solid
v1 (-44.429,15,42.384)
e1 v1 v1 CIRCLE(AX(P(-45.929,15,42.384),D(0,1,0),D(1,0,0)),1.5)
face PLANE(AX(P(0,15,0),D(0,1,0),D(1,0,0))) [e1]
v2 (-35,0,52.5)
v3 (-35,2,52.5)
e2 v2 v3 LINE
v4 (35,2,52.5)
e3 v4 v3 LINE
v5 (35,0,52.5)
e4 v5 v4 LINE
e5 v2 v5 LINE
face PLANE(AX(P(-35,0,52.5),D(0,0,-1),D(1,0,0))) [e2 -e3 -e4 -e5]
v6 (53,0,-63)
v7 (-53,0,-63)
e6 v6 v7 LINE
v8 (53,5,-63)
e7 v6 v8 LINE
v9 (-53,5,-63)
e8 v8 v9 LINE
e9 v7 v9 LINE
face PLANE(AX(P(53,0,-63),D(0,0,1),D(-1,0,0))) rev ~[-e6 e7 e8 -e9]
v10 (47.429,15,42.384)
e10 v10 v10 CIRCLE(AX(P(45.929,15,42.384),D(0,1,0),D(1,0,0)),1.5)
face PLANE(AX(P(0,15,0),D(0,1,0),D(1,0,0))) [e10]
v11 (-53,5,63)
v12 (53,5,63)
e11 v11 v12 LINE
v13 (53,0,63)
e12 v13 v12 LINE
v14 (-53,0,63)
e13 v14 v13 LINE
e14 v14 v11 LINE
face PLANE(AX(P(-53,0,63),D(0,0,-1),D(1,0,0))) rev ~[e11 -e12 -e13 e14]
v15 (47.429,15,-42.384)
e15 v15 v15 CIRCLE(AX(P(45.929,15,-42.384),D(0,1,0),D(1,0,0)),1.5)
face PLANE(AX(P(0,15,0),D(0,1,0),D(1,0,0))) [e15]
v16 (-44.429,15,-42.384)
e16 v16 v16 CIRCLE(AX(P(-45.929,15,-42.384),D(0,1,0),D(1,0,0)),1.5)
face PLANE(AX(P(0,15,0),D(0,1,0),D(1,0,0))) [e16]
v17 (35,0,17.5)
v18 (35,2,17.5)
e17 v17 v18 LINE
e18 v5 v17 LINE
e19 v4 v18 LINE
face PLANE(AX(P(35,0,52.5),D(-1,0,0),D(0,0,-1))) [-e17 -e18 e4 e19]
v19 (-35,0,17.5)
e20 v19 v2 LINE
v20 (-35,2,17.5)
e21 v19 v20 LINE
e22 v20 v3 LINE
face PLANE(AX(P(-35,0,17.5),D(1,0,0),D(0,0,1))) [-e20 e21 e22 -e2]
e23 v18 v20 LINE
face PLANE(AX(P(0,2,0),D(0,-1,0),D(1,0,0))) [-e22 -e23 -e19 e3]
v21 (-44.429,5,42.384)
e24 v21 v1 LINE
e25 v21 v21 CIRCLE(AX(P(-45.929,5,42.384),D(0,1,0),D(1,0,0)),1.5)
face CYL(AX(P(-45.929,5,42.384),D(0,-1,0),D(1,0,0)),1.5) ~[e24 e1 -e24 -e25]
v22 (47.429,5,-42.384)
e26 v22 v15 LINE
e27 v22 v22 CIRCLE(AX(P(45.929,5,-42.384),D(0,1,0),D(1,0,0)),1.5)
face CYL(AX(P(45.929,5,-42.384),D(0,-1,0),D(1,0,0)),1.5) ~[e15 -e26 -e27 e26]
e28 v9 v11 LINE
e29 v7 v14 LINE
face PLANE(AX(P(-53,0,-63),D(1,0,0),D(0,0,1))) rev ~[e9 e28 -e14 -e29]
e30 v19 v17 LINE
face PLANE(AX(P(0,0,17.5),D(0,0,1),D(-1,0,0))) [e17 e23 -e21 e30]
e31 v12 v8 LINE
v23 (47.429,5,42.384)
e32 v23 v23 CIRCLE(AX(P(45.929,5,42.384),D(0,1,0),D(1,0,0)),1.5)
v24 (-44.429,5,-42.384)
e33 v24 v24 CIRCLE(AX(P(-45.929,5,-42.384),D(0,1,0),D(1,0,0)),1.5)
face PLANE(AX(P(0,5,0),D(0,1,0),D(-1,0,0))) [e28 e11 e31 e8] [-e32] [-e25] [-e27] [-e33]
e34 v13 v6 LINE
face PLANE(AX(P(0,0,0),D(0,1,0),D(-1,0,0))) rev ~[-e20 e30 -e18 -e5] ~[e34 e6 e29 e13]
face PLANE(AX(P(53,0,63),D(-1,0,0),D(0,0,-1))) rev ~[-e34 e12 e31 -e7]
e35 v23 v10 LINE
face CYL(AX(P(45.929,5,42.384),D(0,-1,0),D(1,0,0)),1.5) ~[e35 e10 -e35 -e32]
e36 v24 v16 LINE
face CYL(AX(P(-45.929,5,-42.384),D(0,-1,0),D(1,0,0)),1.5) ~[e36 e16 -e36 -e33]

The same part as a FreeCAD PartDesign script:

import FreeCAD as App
import Part
import Sketcher

V = App.Vector
Q = App.Units.Quantity

doc = App.newDocument("Part")
params = doc.addObject("Spreadsheet::Sheet", "Params")
for row, (alias, value) in enumerate([
    ("sketch1_width", "106 mm"),
    ("sketch1_height", "126 mm"),
    ("pad1_length", "5 mm"),
    ("sketch2_diameter", "3 mm"),
    ("pad2_length", "10 mm"),
    ("sketch3_height", "35 mm"),
    ("pocket1_length", "2 mm"),
], start=1):
    params.set(f"A{row}", alias)
    params.set(f"B{row}", "=" + value)
    params.setAlias(f"B{row}", alias)

body = doc.addObject("PartDesign::Body", "Body")

sketch1 = body.newObject("Sketcher::SketchObject", "Sketch")
sketch1.AttachmentSupport = (doc.getObject("XZ_Plane"), [""])
sketch1.MapMode = "FlatFace"
sketch1.addGeometry([
    Part.LineSegment(V(-53, -63, 0), V(-53, 63, 0)),
    Part.LineSegment(V(-53, 63, 0), V(53, 63, 0)),
    Part.LineSegment(V(53, 63, 0), V(53, -63, 0)),
    Part.LineSegment(V(53, -63, 0), V(-53, -63, 0)),
], False)
sketch1.addConstraint([
    Sketcher.Constraint("Coincident", 0, 2, 1, 1),
    Sketcher.Constraint("Coincident", 1, 2, 2, 1),
    Sketcher.Constraint("Coincident", 2, 2, 3, 1),
    Sketcher.Constraint("Coincident", 3, 2, 0, 1),
    Sketcher.Constraint("Vertical", 0),
    Sketcher.Constraint("Horizontal", 1),
    Sketcher.Constraint("Vertical", 2),
    Sketcher.Constraint("Horizontal", 3),
    Sketcher.Constraint("Symmetric", 0, 2, 2, 2, -1, 1),
    Sketcher.Constraint("DistanceX", 1, 1, 1, 2, Q("106 mm")),
    Sketcher.Constraint("DistanceY", 0, 1, 0, 2, Q("126 mm")),
])
sketch1.setExpression("Constraints[9]", "Params.sketch1_width")
sketch1.setExpression("Constraints[10]", "Params.sketch1_height")
pad1 = body.newObject("PartDesign::Pad", "Pad")
pad1.Profile = sketch1
pad1.setExpression("Length", "Params.pad1_length")
pad1.Reversed = True

sketch2 = body.newObject("Sketcher::SketchObject", "Sketch001")
sketch2.AttachmentSupport = (doc.getObject("XZ_Plane"), [""])
sketch2.MapMode = "FlatFace"
sketch2.AttachmentOffset = App.Placement(V(0, 0, -5), App.Rotation())
sketch2.addGeometry([
    Part.Circle(V(-45.9, 42.4, 0), V(0, 0, 1), 1.5),
    Part.Circle(V(-45.9, -42.4, 0), V(0, 0, 1), 1.5),
    Part.Circle(V(45.9, 42.4, 0), V(0, 0, 1), 1.5),
    Part.Circle(V(45.9, -42.4, 0), V(0, 0, 1), 1.5),
], False)
sketch2.addConstraint([
    Sketcher.Constraint("Equal", 0, 1),
    Sketcher.Constraint("Equal", 1, 2),
    Sketcher.Constraint("Equal", 2, 3),
    Sketcher.Constraint("Symmetric", 1, 3, 2, 3, -1, 1),
    Sketcher.Constraint("Symmetric", 0, 3, 3, 3, -1, 1),
    Sketcher.Constraint("Symmetric", 0, 3, 2, 3, -2),
    Sketcher.Constraint("Diameter", 0, Q("3 mm")),
    Sketcher.Constraint("DistanceX", 0, 3, -1, 1, Q("45.929 mm")),
    Sketcher.Constraint("DistanceY", -1, 1, 0, 3, Q("42.384 mm")),
])
sketch2.setExpression("Constraints[6]", "Params.sketch2_diameter")
pad2 = body.newObject("PartDesign::Pad", "Pad001")
pad2.Profile = sketch2
pad2.setExpression("Length", "Params.pad2_length")
pad2.Reversed = True

sketch3 = body.newObject("Sketcher::SketchObject", "Sketch002")
sketch3.AttachmentSupport = (doc.getObject("XZ_Plane"), [""])
sketch3.MapMode = "FlatFace"
sketch3.addGeometry([
    Part.LineSegment(V(-35, 52, 0), V(-35, 18, 0)),
    Part.LineSegment(V(-35, 18, 0), V(35, 18, 0)),
    Part.LineSegment(V(35, 18, 0), V(35, 52, 0)),
    Part.LineSegment(V(35, 52, 0), V(-35, 52, 0)),
], False)
sketch3.addConstraint([
    Sketcher.Constraint("Coincident", 0, 2, 1, 1),
    Sketcher.Constraint("Coincident", 1, 2, 2, 1),
    Sketcher.Constraint("Coincident", 2, 2, 3, 1),
    Sketcher.Constraint("Coincident", 3, 2, 0, 1),
    Sketcher.Constraint("Vertical", 0),
    Sketcher.Constraint("Horizontal", 1),
    Sketcher.Constraint("Vertical", 2),
    Sketcher.Constraint("Horizontal", 3),
    Sketcher.Constraint("DistanceY", 0, 2, 0, 1, Q("35 mm")),
    Sketcher.Constraint("DistanceX", 0, 2, -1, 1, Q("35 mm")),
    Sketcher.Constraint("DistanceX", -1, 1, 1, 2, Q("35 mm")),
    Sketcher.Constraint("DistanceY", -1, 1, 2, 2, Q("52.5 mm")),
])
sketch3.setExpression("Constraints[8]", "Params.sketch3_height")
pocket1 = body.newObject("PartDesign::Pocket", "Pocket")
pocket1.Profile = sketch3
pocket1.setExpression("Length", "Params.pocket1_length")

doc.recompute()
